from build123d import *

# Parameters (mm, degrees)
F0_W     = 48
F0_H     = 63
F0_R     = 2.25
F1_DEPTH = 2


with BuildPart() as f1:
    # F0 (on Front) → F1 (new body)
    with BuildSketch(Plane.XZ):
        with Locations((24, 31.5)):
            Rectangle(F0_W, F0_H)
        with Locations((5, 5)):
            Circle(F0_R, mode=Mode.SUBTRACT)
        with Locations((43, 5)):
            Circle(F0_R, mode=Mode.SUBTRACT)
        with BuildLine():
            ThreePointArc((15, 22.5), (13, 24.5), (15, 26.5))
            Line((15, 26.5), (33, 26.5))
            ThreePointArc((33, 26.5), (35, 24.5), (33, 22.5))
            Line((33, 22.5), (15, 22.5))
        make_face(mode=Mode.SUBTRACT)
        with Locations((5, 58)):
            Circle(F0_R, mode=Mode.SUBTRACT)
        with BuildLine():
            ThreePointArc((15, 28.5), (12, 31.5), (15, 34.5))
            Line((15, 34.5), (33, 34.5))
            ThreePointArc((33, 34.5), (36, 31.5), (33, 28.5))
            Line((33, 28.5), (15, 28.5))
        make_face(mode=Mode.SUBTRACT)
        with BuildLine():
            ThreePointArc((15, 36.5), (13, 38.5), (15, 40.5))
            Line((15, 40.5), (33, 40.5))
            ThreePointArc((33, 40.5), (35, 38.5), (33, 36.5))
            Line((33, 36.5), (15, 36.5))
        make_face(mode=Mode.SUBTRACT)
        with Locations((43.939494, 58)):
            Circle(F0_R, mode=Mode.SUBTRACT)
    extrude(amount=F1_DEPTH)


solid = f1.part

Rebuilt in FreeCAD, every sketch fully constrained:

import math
import FreeCAD as App
import Part
import Sketcher
from FreeCAD import Vector
Q = App.Units.Quantity

doc = App.newDocument("Part")
body = doc.addObject("PartDesign::Body", "Body")

# Sketch on XZ plane
sketch1 = body.newObject("Sketcher::SketchObject", "Sketch")
sketch1.AttachmentSupport = (doc.getObject("XZ_Plane"), [""])
sketch1.MapMode = "FlatFace"
sketch1.addGeometry([
    Part.LineSegment(Vector(0, 63, 0), Vector(0, 0, 0)),  # 0
    Part.LineSegment(Vector(0, 0, 0), Vector(48, 0, 0)),  # 1
    Part.LineSegment(Vector(48, 0, 0), Vector(48, 63, 0)),  # 2
    Part.LineSegment(Vector(48, 63, 0), Vector(0, 63, 0)),  # 3
    Part.Circle(Vector(5, 5, 0), Vector(0, 0, 1), 2.2),  # 4
    Part.LineSegment(Vector(33, 22.5, 0), Vector(15, 22.5, 0)),  # 5
    Part.ArcOfCircle(Part.Circle(Vector(15, 24.5, 0), Vector(0, 0, 1), 2), math.radians(90), math.radians(270)),  # 6
    Part.LineSegment(Vector(15, 26.5, 0), Vector(33, 26.5, 0)),  # 7
    Part.ArcOfCircle(Part.Circle(Vector(33, 24.5, 0), Vector(0, 0, 1), 2), math.radians(-90), math.radians(90)),  # 8
    Part.Circle(Vector(43, 5, 0), Vector(0, 0, 1), 2.2),  # 9
    Part.LineSegment(Vector(33, 28.5, 0), Vector(15, 28.5, 0)),  # 10
    Part.ArcOfCircle(Part.Circle(Vector(15, 31.5, 0), Vector(0, 0, 1), 3), math.radians(90), math.radians(270)),  # 11
    Part.LineSegment(Vector(15, 34.5, 0), Vector(33, 34.5, 0)),  # 12
    Part.ArcOfCircle(Part.Circle(Vector(33, 31.5, 0), Vector(0, 0, 1), 3), math.radians(-90), math.radians(90)),  # 13
    Part.LineSegment(Vector(33, 36.5, 0), Vector(15, 36.5, 0)),  # 14
    Part.ArcOfCircle(Part.Circle(Vector(15, 38.5, 0), Vector(0, 0, 1), 2), math.radians(90), math.radians(270)),  # 15
    Part.LineSegment(Vector(15, 40.5, 0), Vector(33, 40.5, 0)),  # 16
    Part.ArcOfCircle(Part.Circle(Vector(33, 38.5, 0), Vector(0, 0, 1), 2), math.radians(-90), math.radians(90)),  # 17
    Part.Circle(Vector(5, 58, 0), Vector(0, 0, 1), 2.2),  # 18
    Part.Circle(Vector(43.9, 58, 0), Vector(0, 0, 1), 2.2),  # 19
], False)
sketch1.addConstraint([
    Sketcher.Constraint("Coincident", 0, 2, 1, 1),
    Sketcher.Constraint("Coincident", 1, 2, 2, 1),
    Sketcher.Constraint("Coincident", 2, 2, 3, 1),
    Sketcher.Constraint("Coincident", 3, 2, 0, 1),
    Sketcher.Constraint("Tangent", 5, 2, 6, 2),
    Sketcher.Constraint("Tangent", 6, 1, 7, 1),
    Sketcher.Constraint("Tangent", 7, 2, 8, 2),
    Sketcher.Constraint("Tangent", 8, 1, 5, 1),
    Sketcher.Constraint("Tangent", 10, 2, 11, 2),
    Sketcher.Constraint("Tangent", 11, 1, 12, 1),
    Sketcher.Constraint("Tangent", 12, 2, 13, 2),
    Sketcher.Constraint("Tangent", 13, 1, 10, 1),
    Sketcher.Constraint("Tangent", 14, 2, 15, 2),
    Sketcher.Constraint("Tangent", 15, 1, 16, 1),
    Sketcher.Constraint("Tangent", 16, 2, 17, 2),
    Sketcher.Constraint("Tangent", 17, 1, 14, 1),
    Sketcher.Constraint("Vertical", 0),
    Sketcher.Constraint("Horizontal", 1),
    Sketcher.Constraint("Vertical", 2),
    Sketcher.Constraint("Horizontal", 3),
    Sketcher.Constraint("Horizontal", 5),
    Sketcher.Constraint("Horizontal", 7),
    Sketcher.Constraint("Horizontal", 10),
    Sketcher.Constraint("Horizontal", 12),
    Sketcher.Constraint("Horizontal", 14),
    Sketcher.Constraint("Horizontal", 16),
    Sketcher.Constraint("Coincident", 0, 2, -1, 1),
    Sketcher.Constraint("Equal", 4, 9),
    Sketcher.Constraint("Equal", 8, 15),
    Sketcher.Constraint("Equal", 9, 18),
    Sketcher.Constraint("Equal", 18, 19),
    Sketcher.Constraint("Horizontal", 4, 3, 9, 3),
    Sketcher.Constraint("Horizontal", 18, 3, 19, 3),
    Sketcher.Constraint("Vertical", 6, 3, 11, 3),
    Sketcher.Constraint("Vertical", 8, 3, 13, 3),
    Sketcher.Constraint("Vertical", 11, 3, 15, 3),
    Sketcher.Constraint("Vertical", 13, 3, 17, 3),
    Sketcher.Constraint("Vertical", 4, 3, 18, 3),
    Sketcher.Constraint("Radius", 6, Q("2 mm")),
    Sketcher.Constraint("Radius", 11, Q("3 mm")),
    Sketcher.Constraint("Diameter", 4, Q("4.5 mm")),
    Sketcher.Constraint("DistanceX", 1, 1, 1, 2, Q("48 mm")),
    Sketcher.Constraint("DistanceX", 5, 2, 5, 1, Q("18 mm")),
    Sketcher.Constraint("DistanceY", 0, 2, 0, 1, Q("63 mm")),
    Sketcher.Constraint("DistanceX", -1, 1, 4, 3, Q("5 mm")),
    Sketcher.Constraint("DistanceY", -1, 1, 4, 3, Q("5 mm")),
    Sketcher.Constraint("DistanceX", -1, 1, 6, 3, Q("15 mm")),
    Sketcher.Constraint("DistanceX", -1, 1, 9, 3, Q("43 mm")),
    Sketcher.Constraint("DistanceY", -1, 1, 18, 3, Q("58 mm")),
    Sketcher.Constraint("DistanceY", 6, 3, 11, 3, Q("7 mm")),
    Sketcher.Constraint("DistanceY", 11, 3, 15, 3, Q("7 mm")),
    Sketcher.Constraint("DistanceY", -1, 1, 6, 3, Q("24.5 mm")),
    Sketcher.Constraint("DistanceX", -1, 1, 19, 3, Q("43.939494 mm")),
])
pad1 = body.newObject("PartDesign::Pad", "Pad")
pad1.Profile = sketch1
pad1.Length = 2

doc.recompute()
